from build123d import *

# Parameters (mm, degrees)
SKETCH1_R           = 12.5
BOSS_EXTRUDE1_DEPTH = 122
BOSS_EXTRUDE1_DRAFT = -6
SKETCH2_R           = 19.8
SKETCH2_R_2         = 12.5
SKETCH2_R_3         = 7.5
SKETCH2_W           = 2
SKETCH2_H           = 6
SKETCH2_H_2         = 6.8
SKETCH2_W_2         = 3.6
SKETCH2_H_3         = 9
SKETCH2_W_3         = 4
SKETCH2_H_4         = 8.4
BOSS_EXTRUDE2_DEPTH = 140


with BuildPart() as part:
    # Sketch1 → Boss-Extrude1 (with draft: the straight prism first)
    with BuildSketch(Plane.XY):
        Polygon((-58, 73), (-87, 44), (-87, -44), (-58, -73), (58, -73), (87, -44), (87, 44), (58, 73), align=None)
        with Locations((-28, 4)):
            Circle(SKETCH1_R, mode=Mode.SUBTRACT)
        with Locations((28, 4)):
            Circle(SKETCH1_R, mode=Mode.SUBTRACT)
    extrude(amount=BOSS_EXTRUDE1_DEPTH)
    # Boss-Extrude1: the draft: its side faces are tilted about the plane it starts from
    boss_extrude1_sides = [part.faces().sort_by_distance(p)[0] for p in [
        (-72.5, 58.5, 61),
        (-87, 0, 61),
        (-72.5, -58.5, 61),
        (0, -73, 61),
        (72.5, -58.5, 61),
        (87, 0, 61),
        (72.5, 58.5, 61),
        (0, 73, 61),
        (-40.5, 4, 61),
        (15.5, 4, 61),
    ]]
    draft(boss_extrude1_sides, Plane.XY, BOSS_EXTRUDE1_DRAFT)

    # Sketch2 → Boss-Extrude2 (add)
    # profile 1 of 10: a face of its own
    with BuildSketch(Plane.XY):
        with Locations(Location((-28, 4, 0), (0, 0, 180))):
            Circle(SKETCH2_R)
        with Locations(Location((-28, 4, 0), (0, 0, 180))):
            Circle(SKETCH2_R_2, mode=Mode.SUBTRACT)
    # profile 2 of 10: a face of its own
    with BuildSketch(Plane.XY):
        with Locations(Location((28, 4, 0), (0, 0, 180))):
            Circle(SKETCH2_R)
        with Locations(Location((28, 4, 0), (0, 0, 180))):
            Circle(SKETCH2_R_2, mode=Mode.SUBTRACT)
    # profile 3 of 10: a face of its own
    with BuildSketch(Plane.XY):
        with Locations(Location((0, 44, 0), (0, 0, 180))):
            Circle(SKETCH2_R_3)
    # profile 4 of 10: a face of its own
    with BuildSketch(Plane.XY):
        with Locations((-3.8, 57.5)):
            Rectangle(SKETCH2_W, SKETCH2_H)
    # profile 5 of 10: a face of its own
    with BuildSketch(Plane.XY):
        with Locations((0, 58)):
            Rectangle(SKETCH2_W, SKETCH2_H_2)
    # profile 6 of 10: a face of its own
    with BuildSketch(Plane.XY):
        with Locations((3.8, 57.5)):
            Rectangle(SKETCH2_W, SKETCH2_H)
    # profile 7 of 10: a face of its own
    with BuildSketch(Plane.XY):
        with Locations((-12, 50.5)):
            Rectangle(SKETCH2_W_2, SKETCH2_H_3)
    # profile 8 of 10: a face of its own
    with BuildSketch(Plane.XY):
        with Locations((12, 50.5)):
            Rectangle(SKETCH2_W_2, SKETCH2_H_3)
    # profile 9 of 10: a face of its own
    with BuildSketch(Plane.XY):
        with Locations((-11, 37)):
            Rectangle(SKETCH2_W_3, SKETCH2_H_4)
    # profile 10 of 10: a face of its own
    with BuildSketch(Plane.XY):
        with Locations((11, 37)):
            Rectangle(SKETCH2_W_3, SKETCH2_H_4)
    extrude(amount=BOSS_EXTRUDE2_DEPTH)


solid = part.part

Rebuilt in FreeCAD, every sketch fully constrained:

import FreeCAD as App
import Part
import Sketcher


def faces_at(feature, points):
    """Names of the faces that lie closest to the given points."""
    faces = feature.Shape.Faces
    near = lambda p: min(range(len(faces)), key=lambda i: faces[i].distToShape(Part.Vertex(*p))[0])
    return sorted({f"Face{near(p) + 1}" for p in points})


def add_polygon(sketch, points):
    """Adds a closed chain of lines whose ends are joined by coincident constraints."""
    first, n = sketch.GeometryCount, len(points)
    for a, b in zip(points, points[1:] + points[:1]):
        sketch.addGeometry(Part.LineSegment(App.Vector(*a, 0), App.Vector(*b, 0)), False)
    for i in range(n):
        sketch.addConstraint(Sketcher.Constraint("Coincident", first + i, 2, first + (i + 1) % n, 1))

doc = App.newDocument("Part")
params = doc.addObject("Spreadsheet::Sheet", "Params")
for row, (alias, value) in enumerate([
    ("sketch1_diameter", "25 mm"),
    ("sketch1_width", "116 mm"),
    ("sketch1_height", "88 mm"),
    ("pad1_length", "122 mm"),
    ("draft_angle", "6 deg"),
    ("sketch2_diameter", "25 mm"),
    ("sketch2_diameter2", "15 mm"),
    ("sketch2_diameter3", "39.6 mm"),
    ("sketch2_width", "2 mm"),
    ("sketch2_width2", "4 mm"),
    ("pad2_length", "140 mm"),
], start=1):
    params.set(f"A{row}", alias)
    params.set(f"B{row}", "=" + value)
    params.setAlias(f"B{row}", alias)

body = doc.addObject("PartDesign::Body", "Body")

sketch1 = doc.addObject("Sketcher::SketchObject", "Sketch")
body.addObject(sketch1)
sketch1.AttachmentSupport = (doc.XY_Plane, [""])
sketch1.MapMode = "FlatFace"
add_polygon(sketch1, [(-58, 73), (-87, 44), (-87, -44), (-58, -73), (58, -73), (87, -44), (87, 44), (58, 73)])
sketch1.addGeometry(Part.Circle(App.Vector(-28, 4, 0), App.Vector(0, 0, 1), 12.5), False)
sketch1.addGeometry(Part.Circle(App.Vector(28, 4, 0), App.Vector(0, 0, 1), 12.5), False)
sketch1.addConstraint([
    Sketcher.Constraint("Vertical", 1),
    Sketcher.Constraint("Horizontal", 3),
    Sketcher.Constraint("Vertical", 5),
    Sketcher.Constraint("Horizontal", 7),
    Sketcher.Constraint("Equal", 8, 9),
    Sketcher.Constraint("Symmetric", 0, 2, 4, 2, -1, 1),
    Sketcher.Constraint("Symmetric", 2, 2, 6, 2, -1, 1),
    Sketcher.Constraint("Symmetric", 8, 3, 9, 3, -2),
    Sketcher.Constraint("Perpendicular", 0, 2),
    Sketcher.Constraint("Perpendicular", 2, 4),
    Sketcher.Constraint("Perpendicular", 4, 6),
    Sketcher.Constraint("Horizontal", 1, 2, 4, 2),
    Sketcher.Constraint("Vertical", 3, 2, 6, 2),
    Sketcher.Constraint("Diameter", 8, 25.0),
    Sketcher.Constraint("DistanceX", 3, 1, 3, 2, 116.0),
    Sketcher.Constraint("DistanceY", 1, 2, 1, 1, 88.0),
    Sketcher.Constraint("DistanceX", 8, 3, -1, 1, 28.0),
    Sketcher.Constraint("DistanceY", -1, 1, 8, 3, 4.0),
    Sketcher.Constraint("DistanceX", 0, 2, -1, 1, 87.0),
])
sketch1.setExpression("Constraints[21]", "Params.sketch1_diameter")
sketch1.setExpression("Constraints[22]", "Params.sketch1_width")
sketch1.setExpression("Constraints[23]", "Params.sketch1_height")
pad1 = doc.addObject("PartDesign::Pad", "Pad")
body.addObject(pad1)
pad1.Profile = sketch1
pad1.setExpression("Length", "Params.pad1_length")
doc.recompute()

draft = doc.addObject("PartDesign::Draft", "Draft")
body.addObject(draft)
draft.Base = (pad1, faces_at(pad1, [
    (-72.5, 58.5, 61),
    (-87, 0, 61),
    (-72.5, -58.5, 61),
    (0, -73, 61),
    (72.5, -58.5, 61),
    (87, 0, 61),
    (72.5, 58.5, 61),
    (0, 73, 61),
    (-40.5, 4, 61),
    (15.5, 4, 61),
]))
draft.NeutralPlane = (doc.XY_Plane, [""])
draft.setExpression("Angle", "Params.draft_angle")
draft.Reversed = True

sketch2 = doc.addObject("Sketcher::SketchObject", "Sketch001")
body.addObject(sketch2)
sketch2.AttachmentSupport = (doc.XY_Plane, [""])
sketch2.MapMode = "FlatFace"
sketch2.addGeometry(Part.Circle(App.Vector(-28, 4, 0), App.Vector(0, 0, 1), 19.8), False)
sketch2.addGeometry(Part.Circle(App.Vector(-28, 4, 0), App.Vector(0, 0, 1), 12.5), False)
sketch2.addGeometry(Part.Circle(App.Vector(28, 4, 0), App.Vector(0, 0, 1), 19.8), False)
sketch2.addGeometry(Part.Circle(App.Vector(28, 4, 0), App.Vector(0, 0, 1), 12.5), False)
sketch2.addGeometry(Part.Circle(App.Vector(0, 44, 0), App.Vector(0, 0, 1), 7.5), False)
add_polygon(sketch2, [(-4.8, 60.5), (-4.8, 54.5), (-2.8, 54.5), (-2.8, 60.5)])
add_polygon(sketch2, [(-1, 61.4), (-1, 54.6), (1, 54.6), (1, 61.4)])
add_polygon(sketch2, [(2.8, 60.5), (2.8, 54.5), (4.8, 54.5), (4.8, 60.5)])
add_polygon(sketch2, [(-13.8, 55), (-13.8, 46), (-10.2, 46), (-10.2, 55)])
add_polygon(sketch2, [(10.2, 55), (10.2, 46), (13.8, 46), (13.8, 55)])
add_polygon(sketch2, [(-13, 41.2), (-13, 32.8), (-9, 32.8), (-9, 41.2)])
add_polygon(sketch2, [(9, 41.2), (9, 32.8), (13, 32.8), (13, 41.2)])
sketch2.addConstraint([
    Sketcher.Constraint("Vertical", 5),
    Sketcher.Constraint("Horizontal", 6),
    Sketcher.Constraint("Vertical", 7),
    Sketcher.Constraint("Horizontal", 8),
    Sketcher.Constraint("Vertical", 9),
    Sketcher.Constraint("Horizontal", 10),
    Sketcher.Constraint("Vertical", 11),
    Sketcher.Constraint("Horizontal", 12),
    Sketcher.Constraint("Vertical", 13),
    Sketcher.Constraint("Horizontal", 14),
    Sketcher.Constraint("Vertical", 15),
    Sketcher.Constraint("Horizontal", 16),
    Sketcher.Constraint("Vertical", 17),
    Sketcher.Constraint("Horizontal", 18),
    Sketcher.Constraint("Vertical", 19),
    Sketcher.Constraint("Horizontal", 20),
    Sketcher.Constraint("Vertical", 21),
    Sketcher.Constraint("Horizontal", 22),
    Sketcher.Constraint("Vertical", 23),
    Sketcher.Constraint("Horizontal", 24),
    Sketcher.Constraint("Vertical", 25),
    Sketcher.Constraint("Horizontal", 26),
    Sketcher.Constraint("Vertical", 27),
    Sketcher.Constraint("Horizontal", 28),
    Sketcher.Constraint("Vertical", 29),
    Sketcher.Constraint("Horizontal", 30),
    Sketcher.Constraint("Vertical", 31),
    Sketcher.Constraint("Horizontal", 32),
    Sketcher.Constraint("Coincident", 1, 3, 0, 3),
    Sketcher.Constraint("Coincident", 3, 3, 2, 3),
    Sketcher.Constraint("Equal", 0, 2),
    Sketcher.Constraint("Equal", 1, 3),
    Sketcher.Constraint("Symmetric", 0, 3, 2, 3, -2),
    Sketcher.Constraint("Symmetric", 6, 2, 13, 2, -2),
    Sketcher.Constraint("Symmetric", 8, 2, 15, 2, -2),
    Sketcher.Constraint("Symmetric", 18, 2, 21, 2, -2),
    Sketcher.Constraint("Symmetric", 20, 2, 23, 2, -2),
    Sketcher.Constraint("Symmetric", 26, 2, 29, 2, -2),
    Sketcher.Constraint("Symmetric", 28, 2, 31, 2, -2),
    Sketcher.Constraint("PointOnObject", 4, 3, -2),
    Sketcher.Constraint("Equal", 8, 10),
    Sketcher.Constraint("Diameter", 1, 25.0),
    Sketcher.Constraint("Diameter", 4, 15.0),
    Sketcher.Constraint("Diameter", 0, 39.6),
    Sketcher.Constraint("DistanceX", 6, 1, 6, 2, 2.0),
    Sketcher.Constraint("DistanceX", 26, 1, 26, 2, 4.0),
    Sketcher.Constraint("DistanceY", 5, 2, 5, 1, 6.0),
    Sketcher.Constraint("DistanceY", 17, 2, 17, 1, 9.0),
    Sketcher.Constraint("DistanceX", 18, 1, 18, 2, 3.6),
    Sketcher.Constraint("DistanceY", 9, 2, 9, 1, 6.8),
    Sketcher.Constraint("DistanceY", 25, 2, 25, 1, 8.4),
    Sketcher.Constraint("DistanceX", 0, 3, -1, 1, 28.0),
    Sketcher.Constraint("DistanceY", -1, 1, 0, 3, 4.0),
    Sketcher.Constraint("DistanceY", -1, 1, 4, 3, 44.0),
    Sketcher.Constraint("DistanceX", 9, 2, -1, 1, 1.0),
    Sketcher.Constraint("DistanceY", -1, 1, 17, 2, 46.0),
    Sketcher.Constraint("DistanceX", 25, 2, -1, 1, 13.0),
    Sketcher.Constraint("DistanceX", 17, 2, 5, 2, 9.0),
    Sketcher.Constraint("DistanceX", 5, 2, -1, 1, 4.8),
    Sketcher.Constraint("DistanceY", -1, 1, 5, 2, 54.5),
    Sketcher.Constraint("DistanceY", -1, 1, 9, 2, 54.6),
    Sketcher.Constraint("DistanceY", -1, 1, 25, 2, 32.8),
])
sketch2.setExpression("Constraints[69]", "Params.sketch2_diameter")
sketch2.setExpression("Constraints[70]", "Params.sketch2_diameter2")
sketch2.setExpression("Constraints[71]", "Params.sketch2_diameter3")
sketch2.setExpression("Constraints[72]", "Params.sketch2_width")
sketch2.setExpression("Constraints[73]", "Params.sketch2_width2")
pad2 = doc.addObject("PartDesign::Pad", "Pad001")
body.addObject(pad2)
pad2.Profile = sketch2
pad2.setExpression("Length", "Params.pad2_length")

doc.recompute()
